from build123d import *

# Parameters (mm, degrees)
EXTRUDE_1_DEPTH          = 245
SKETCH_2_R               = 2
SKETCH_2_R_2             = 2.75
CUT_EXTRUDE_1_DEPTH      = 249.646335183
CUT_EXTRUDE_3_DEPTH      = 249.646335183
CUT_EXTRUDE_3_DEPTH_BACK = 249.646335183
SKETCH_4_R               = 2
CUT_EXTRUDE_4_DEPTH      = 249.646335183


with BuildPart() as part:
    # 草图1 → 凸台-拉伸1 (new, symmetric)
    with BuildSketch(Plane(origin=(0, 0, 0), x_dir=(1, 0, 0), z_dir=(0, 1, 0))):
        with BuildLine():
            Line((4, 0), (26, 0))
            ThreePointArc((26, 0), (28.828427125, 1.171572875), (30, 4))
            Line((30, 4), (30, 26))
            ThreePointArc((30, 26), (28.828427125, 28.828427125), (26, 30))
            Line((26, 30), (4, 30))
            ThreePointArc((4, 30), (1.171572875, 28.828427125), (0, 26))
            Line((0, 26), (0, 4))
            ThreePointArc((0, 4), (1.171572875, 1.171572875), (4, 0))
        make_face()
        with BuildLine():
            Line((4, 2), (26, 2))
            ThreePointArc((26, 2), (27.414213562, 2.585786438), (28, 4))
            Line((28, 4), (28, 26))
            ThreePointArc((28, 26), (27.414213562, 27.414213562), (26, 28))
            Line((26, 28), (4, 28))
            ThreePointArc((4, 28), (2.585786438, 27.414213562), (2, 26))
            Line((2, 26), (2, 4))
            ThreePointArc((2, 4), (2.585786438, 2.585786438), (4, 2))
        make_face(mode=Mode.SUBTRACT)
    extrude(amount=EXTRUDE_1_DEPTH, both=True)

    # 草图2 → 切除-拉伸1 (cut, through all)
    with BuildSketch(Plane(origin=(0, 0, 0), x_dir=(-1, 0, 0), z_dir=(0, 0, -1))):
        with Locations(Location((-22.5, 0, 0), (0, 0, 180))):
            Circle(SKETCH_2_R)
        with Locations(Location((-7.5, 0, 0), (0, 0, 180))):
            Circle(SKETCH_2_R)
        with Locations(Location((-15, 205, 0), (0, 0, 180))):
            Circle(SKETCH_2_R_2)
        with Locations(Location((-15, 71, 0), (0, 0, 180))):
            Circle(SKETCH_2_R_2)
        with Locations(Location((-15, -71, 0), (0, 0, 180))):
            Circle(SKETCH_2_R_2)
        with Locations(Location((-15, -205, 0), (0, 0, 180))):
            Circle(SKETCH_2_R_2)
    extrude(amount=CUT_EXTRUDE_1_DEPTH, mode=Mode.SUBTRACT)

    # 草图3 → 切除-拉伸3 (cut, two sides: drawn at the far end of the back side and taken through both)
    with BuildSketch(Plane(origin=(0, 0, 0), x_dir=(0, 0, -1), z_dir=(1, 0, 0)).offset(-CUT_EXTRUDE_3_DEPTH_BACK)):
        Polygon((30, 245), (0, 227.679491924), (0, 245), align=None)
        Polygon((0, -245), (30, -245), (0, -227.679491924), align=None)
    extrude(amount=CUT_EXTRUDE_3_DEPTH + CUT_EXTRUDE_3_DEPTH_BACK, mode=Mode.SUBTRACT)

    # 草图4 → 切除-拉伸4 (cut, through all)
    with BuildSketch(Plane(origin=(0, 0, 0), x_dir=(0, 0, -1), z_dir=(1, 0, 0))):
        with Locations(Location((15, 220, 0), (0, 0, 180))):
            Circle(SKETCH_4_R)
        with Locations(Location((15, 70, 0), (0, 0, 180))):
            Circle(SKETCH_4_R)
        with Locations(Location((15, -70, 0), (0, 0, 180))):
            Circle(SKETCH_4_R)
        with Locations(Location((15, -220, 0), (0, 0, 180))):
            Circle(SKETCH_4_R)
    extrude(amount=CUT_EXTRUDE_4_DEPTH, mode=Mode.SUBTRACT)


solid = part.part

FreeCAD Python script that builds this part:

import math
import FreeCAD as App
import Part
import Sketcher
from FreeCAD import Vector
Q = App.Units.Quantity


def add_polygon(sketch, points):
    """Adds a closed chain of lines whose ends are joined by coincident constraints."""
    first, n = sketch.GeometryCount, len(points)
    for a, b in zip(points, points[1:] + points[:1]):
        sketch.addGeometry(Part.LineSegment(App.Vector(*a, 0), App.Vector(*b, 0)), False)
    for i in range(n):
        sketch.addConstraint(Sketcher.Constraint("Coincident", first + i, 2, first + (i + 1) % n, 1))

doc = App.newDocument("Part")
body = doc.addObject("PartDesign::Body", "Body")

sketch1 = body.newObject("Sketcher::SketchObject", "Sketch")
sketch1.AttachmentSupport = (doc.getObject("XZ_Plane"), [""])
sketch1.MapMode = "FlatFace"
sketch1.addGeometry([
    Part.LineSegment(Vector(4, 0, 0), Vector(26, 0, 0)),
    Part.ArcOfCircle(Part.Circle(Vector(26, -4, 0), Vector(0, 0, 1), 4), math.radians(0), math.radians(90)),
    Part.LineSegment(Vector(30, -4, 0), Vector(30, -26, 0)),
    Part.ArcOfCircle(Part.Circle(Vector(26, -26, 0), Vector(0, 0, 1), 4), math.radians(-90), math.radians(0)),
    Part.LineSegment(Vector(26, -30, 0), Vector(4, -30, 0)),
    Part.ArcOfCircle(Part.Circle(Vector(4, -26, 0), Vector(0, 0, 1), 4), math.radians(180), math.radians(270)),
    Part.LineSegment(Vector(0, -26, 0), Vector(0, -4, 0)),
    Part.ArcOfCircle(Part.Circle(Vector(4, -4, 0), Vector(0, 0, 1), 4), math.radians(90), math.radians(180)),
    Part.LineSegment(Vector(26, -2, 0), Vector(4, -2, 0)),
    Part.ArcOfCircle(Part.Circle(Vector(4, -4, 0), Vector(0, 0, 1), 2), math.radians(90), math.radians(180)),
    Part.LineSegment(Vector(2, -4, 0), Vector(2, -26, 0)),
    Part.ArcOfCircle(Part.Circle(Vector(4, -26, 0), Vector(0, 0, 1), 2), math.radians(-180), math.radians(-90)),
    Part.LineSegment(Vector(4, -28, 0), Vector(26, -28, 0)),
    Part.ArcOfCircle(Part.Circle(Vector(26, -26, 0), Vector(0, 0, 1), 2), math.radians(-90), math.radians(0)),
    Part.LineSegment(Vector(28, -26, 0), Vector(28, -4, 0)),
    Part.ArcOfCircle(Part.Circle(Vector(26, -4, 0), Vector(0, 0, 1), 2), math.radians(0), math.radians(90)),
], False)
sketch1.addConstraint([
    Sketcher.Constraint("Tangent", 0, 2, 1, 2),
    Sketcher.Constraint("Tangent", 1, 1, 2, 1),
    Sketcher.Constraint("Tangent", 2, 2, 3, 2),
    Sketcher.Constraint("Tangent", 3, 1, 4, 1),
    Sketcher.Constraint("Tangent", 4, 2, 5, 2),
    Sketcher.Constraint("Tangent", 5, 1, 6, 1),
    Sketcher.Constraint("Tangent", 6, 2, 7, 2),
    Sketcher.Constraint("Tangent", 7, 1, 0, 1),
    Sketcher.Constraint("Tangent", 8, 2, 9, 1),
    Sketcher.Constraint("Tangent", 9, 2, 10, 1),
    Sketcher.Constraint("Tangent", 10, 2, 11, 1),
    Sketcher.Constraint("Tangent", 11, 2, 12, 1),
    Sketcher.Constraint("Tangent", 12, 2, 13, 1),
    Sketcher.Constraint("Tangent", 13, 2, 14, 1),
    Sketcher.Constraint("Tangent", 14, 2, 15, 1),
    Sketcher.Constraint("Tangent", 15, 2, 8, 1),
    Sketcher.Constraint("Horizontal", 0),
    Sketcher.Constraint("Vertical", 2),
    Sketcher.Constraint("Horizontal", 4),
    Sketcher.Constraint("Vertical", 6),
    Sketcher.Constraint("Horizontal", 8),
    Sketcher.Constraint("Vertical", 10),
    Sketcher.Constraint("Horizontal", 12),
    Sketcher.Constraint("Vertical", 14),
    Sketcher.Constraint("Coincident", 9, 3, 7, 3),
    Sketcher.Constraint("Coincident", 11, 3, 5, 3),
    Sketcher.Constraint("Coincident", 13, 3, 3, 3),
    Sketcher.Constraint("Equal", 1, 3),
    Sketcher.Constraint("Equal", 3, 5),
    Sketcher.Constraint("Equal", 5, 7),
    Sketcher.Constraint("Equal", 13, 15),
    Sketcher.Constraint("PointOnObject", 0, 2, -1),
    Sketcher.Constraint("PointOnObject", 5, 1, -2),
    Sketcher.Constraint("Equal", 12, 2),
    Sketcher.Constraint("Radius", 1, Q("4 mm")),
    Sketcher.Constraint("Radius", 9, Q("2 mm")),
    Sketcher.Constraint("DistanceX", 0, 1, 0, 2, Q("22 mm")),
])
pad1 = body.newObject("PartDesign::Pad", "Pad")
pad1.Profile = sketch1
pad1.Length = 490
pad1.Midplane = True

sketch2 = body.newObject("Sketcher::SketchObject", "Sketch001")
sketch2.AttachmentSupport = (doc.getObject("XY_Plane"), [""])
sketch2.MapMode = "FlatFace"
sketch2.addGeometry([
    Part.Circle(Vector(22.5, 0, 0), Vector(0, 0, 1), 2),
    Part.Circle(Vector(7.5, 0, 0), Vector(0, 0, 1), 2),
    Part.Circle(Vector(15, 205, 0), Vector(0, 0, 1), 2.8),
    Part.Circle(Vector(15, 71, 0), Vector(0, 0, 1), 2.8),
    Part.Circle(Vector(15, -71, 0), Vector(0, 0, 1), 2.8),
    Part.Circle(Vector(15, -205, 0), Vector(0, 0, 1), 2.8),
], False)
sketch2.addConstraint([
    Sketcher.Constraint("Equal", 0, 1),
    Sketcher.Constraint("Equal", 2, 3),
    Sketcher.Constraint("Equal", 3, 4),
    Sketcher.Constraint("Equal", 4, 5),
    Sketcher.Constraint("Symmetric", 3, 3, 4, 3, -1),
    Sketcher.Constraint("Symmetric", 2, 3, 5, 3, -1),
    Sketcher.Constraint("PointOnObject", 0, 3, -1),
    Sketcher.Constraint("PointOnObject", 1, 3, -1),
    Sketcher.Constraint("Vertical", 2, 3, 3, 3),
    Sketcher.Constraint("Diameter", 0, Q("4 mm")),
    Sketcher.Constraint("Diameter", 2, Q("5.5 mm")),
    Sketcher.Constraint("DistanceX", -1, 1, 2, 3, Q("15 mm")),
    Sketcher.Constraint("DistanceY", -1, 1, 2, 3, Q("205 mm")),
    Sketcher.Constraint("DistanceY", -1, 1, 3, 3, Q("71 mm")),
    Sketcher.Constraint("DistanceX", 1, 3, 0, 3, Q("15 mm")),
    Sketcher.Constraint("DistanceX", -1, 1, 0, 3, Q("22.5 mm")),
])
pocket1 = body.newObject("PartDesign::Pocket", "Pocket")
pocket1.Profile = sketch2
pocket1.Type = "ThroughAll"

sketch3 = body.newObject("Sketcher::SketchObject", "Sketch002")
sketch3.AttachmentSupport = (doc.getObject("YZ_Plane"), [""])
sketch3.MapMode = "FlatFace"
add_polygon(sketch3, [(228, 0), (245, -30), (245, 0)])
add_polygon(sketch3, [(-245, 0), (-245, -30), (-228, 0)])
sketch3.addConstraint([
    Sketcher.Constraint("Vertical", 1),
    Sketcher.Constraint("Horizontal", 2),
    Sketcher.Constraint("Vertical", 3),
    Sketcher.Constraint("Horizontal", 5),
    Sketcher.Constraint("Symmetric", 2, 2, 4, 2, -1, 1),
    Sketcher.Constraint("Symmetric", 0, 2, 3, 2, -2),
    Sketcher.Constraint("PointOnObject", 1, 2, -1),
    Sketcher.Constraint("DistanceY", 1, 1, 1, 2, Q("30 mm")),
    Sketcher.Constraint("Angle", 0, Q("-60 deg")),
    Sketcher.Constraint("DistanceX", -1, 1, 0, 2, Q("245 mm")),
])
pocket2 = body.newObject("PartDesign::Pocket", "Pocket001")
pocket2.Profile = sketch3
pocket2.Type = "ThroughAll"
pocket2.Midplane = True

sketch4 = body.newObject("Sketcher::SketchObject", "Sketch003")
sketch4.AttachmentSupport = (doc.getObject("YZ_Plane"), [""])
sketch4.MapMode = "FlatFace"
sketch4.addGeometry([
    Part.Circle(Vector(220, -15, 0), Vector(0, 0, 1), 2),
    Part.Circle(Vector(70, -15, 0), Vector(0, 0, 1), 2),
    Part.Circle(Vector(-70, -15, 0), Vector(0, 0, 1), 2),
    Part.Circle(Vector(-220, -15, 0), Vector(0, 0, 1), 2),
], False)
sketch4.addConstraint([
    Sketcher.Constraint("Equal", 0, 1),
    Sketcher.Constraint("Equal", 1, 2),
    Sketcher.Constraint("Equal", 2, 3),
    Sketcher.Constraint("Symmetric", 1, 3, 2, 3, -2),
    Sketcher.Constraint("Symmetric", 0, 3, 3, 3, -2),
    Sketcher.Constraint("Horizontal", 0, 3, 1, 3),
    Sketcher.Constraint("Diameter", 0, Q("4 mm")),
    Sketcher.Constraint("DistanceX", -1, 1, 0, 3, Q("220 mm")),
    Sketcher.Constraint("DistanceY", 0, 3, -1, 1, Q("15 mm")),
    Sketcher.Constraint("DistanceX", -1, 1, 1, 3, Q("70 mm")),
])
pocket3 = body.newObject("PartDesign::Pocket", "Pocket002")
pocket3.Profile = sketch4
pocket3.Type = "ThroughAll"
pocket3.Reversed = True

doc.recompute()
